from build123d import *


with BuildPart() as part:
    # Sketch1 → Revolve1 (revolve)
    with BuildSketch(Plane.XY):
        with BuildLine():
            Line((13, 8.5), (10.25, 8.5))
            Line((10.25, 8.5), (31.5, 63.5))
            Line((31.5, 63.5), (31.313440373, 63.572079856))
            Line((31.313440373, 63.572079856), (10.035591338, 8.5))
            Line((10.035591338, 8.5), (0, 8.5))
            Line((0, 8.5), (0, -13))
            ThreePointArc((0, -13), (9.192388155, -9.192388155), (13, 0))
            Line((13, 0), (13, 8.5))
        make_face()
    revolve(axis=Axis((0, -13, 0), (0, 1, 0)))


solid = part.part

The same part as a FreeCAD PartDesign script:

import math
import FreeCAD as App
import Part
import Sketcher
from FreeCAD import Vector
Q = App.Units.Quantity

doc = App.newDocument("Part")
body = doc.addObject("PartDesign::Body", "Body")

sketch1 = doc.addObject("Sketcher::SketchObject", "Sketch")
body.addObject(sketch1)
sketch1.AttachmentSupport = (doc.XY_Plane, [""])
sketch1.MapMode = "FlatFace"
sketch1.addGeometry([
    Part.LineSegment(Vector(13, 8.5, 0), Vector(10.25, 8.5, 0)),
    Part.LineSegment(Vector(10.25, 8.5, 0), Vector(31.5, 63.5, 0)),
    Part.LineSegment(Vector(31.5, 63.5, 0), Vector(31.31, 63.57, 0)),
    Part.LineSegment(Vector(31.31, 63.57, 0), Vector(10.04, 8.5, 0)),
    Part.LineSegment(Vector(10.04, 8.5, 0), Vector(0, 8.5, 0)),
    Part.LineSegment(Vector(0, 8.5, 0), Vector(0, -13, 0)),
    Part.ArcOfCircle(Part.Circle(Vector(0, 0, 0), Vector(0, 0, 1), 13), math.radians(-90), math.radians(0)),
    Part.LineSegment(Vector(13, 0, 0), Vector(13, 8.5, 0)),
], False)
sketch1.addConstraint([
    Sketcher.Constraint("Coincident", 0, 2, 1, 1),
    Sketcher.Constraint("Coincident", 1, 2, 2, 1),
    Sketcher.Constraint("Coincident", 2, 2, 3, 1),
    Sketcher.Constraint("Coincident", 3, 2, 4, 1),
    Sketcher.Constraint("Coincident", 4, 2, 5, 1),
    Sketcher.Constraint("Coincident", 5, 2, 6, 1),
    Sketcher.Constraint("Tangent", 6, 2, 7, 1),
    Sketcher.Constraint("Coincident", 7, 2, 0, 1),
    Sketcher.Constraint("Horizontal", 0),
    Sketcher.Constraint("Horizontal", 4),
    Sketcher.Constraint("Vertical", 5),
    Sketcher.Constraint("Vertical", 7),
    Sketcher.Constraint("Coincident", 6, 3, -1, 1),
    Sketcher.Constraint("PointOnObject", 4, 2, -2),
    Sketcher.Constraint("Perpendicular", 1, 2),
    Sketcher.Constraint("Perpendicular", 2, 3),
    Sketcher.Constraint("Horizontal", 0, 2, 3, 2),
    Sketcher.Constraint("Radius", 6, Q("13 mm")),
    Sketcher.Constraint("DistanceY", 5, 2, 5, 1, Q("21.5 mm")),
    Sketcher.Constraint("DistanceY", 0, 2, 1, 2, Q("55 mm")),
    Sketcher.Constraint("Distance", 2, Q("0.2 mm")),
    Sketcher.Constraint("DistanceX", 0, 2, 0, 1, Q("2.75 mm")),
    Sketcher.Constraint("DistanceX", -1, 1, 1, 2, Q("31.5 mm")),
])
revolution = doc.addObject("PartDesign::Revolution", "Revolution")
body.addObject(revolution)
revolution.Profile = sketch1
revolution.ReferenceAxis = (sketch1, ["V_Axis"])
revolution.Angle = 360

doc.recompute()
